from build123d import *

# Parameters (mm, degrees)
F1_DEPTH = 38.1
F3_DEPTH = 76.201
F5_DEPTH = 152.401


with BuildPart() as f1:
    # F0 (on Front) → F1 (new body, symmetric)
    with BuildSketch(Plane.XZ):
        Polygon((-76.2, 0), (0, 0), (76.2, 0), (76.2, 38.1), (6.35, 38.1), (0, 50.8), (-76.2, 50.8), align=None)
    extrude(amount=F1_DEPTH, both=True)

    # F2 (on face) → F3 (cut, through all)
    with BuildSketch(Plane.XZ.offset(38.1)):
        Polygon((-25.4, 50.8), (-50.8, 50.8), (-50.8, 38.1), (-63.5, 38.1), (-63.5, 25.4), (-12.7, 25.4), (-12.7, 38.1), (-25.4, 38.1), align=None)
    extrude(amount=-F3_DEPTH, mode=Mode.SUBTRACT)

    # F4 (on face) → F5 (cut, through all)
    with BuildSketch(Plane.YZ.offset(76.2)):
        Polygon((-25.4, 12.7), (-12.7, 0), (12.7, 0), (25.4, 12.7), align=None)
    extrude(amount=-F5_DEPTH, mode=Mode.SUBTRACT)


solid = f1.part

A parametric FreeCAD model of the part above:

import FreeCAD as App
import Part
import Sketcher
Q = App.Units.Quantity

doc = App.newDocument("Part")
body = doc.addObject("PartDesign::Body", "Body")

sketch1 = body.newObject("Sketcher::SketchObject", "Sketch")
sketch1.AttachmentSupport = (doc.getObject("XZ_Plane"), [""])
sketch1.MapMode = "FlatFace"
sketch1.addGeometry(Part.LineSegment(App.Vector(-76, 0, 0), App.Vector(76, 0, 0)), False)
sketch1.addGeometry(Part.LineSegment(App.Vector(76, 0, 0), App.Vector(76, 38, 0)), False)
sketch1.addGeometry(Part.LineSegment(App.Vector(76, 38, 0), App.Vector(6, 38, 0)), False)
sketch1.addGeometry(Part.LineSegment(App.Vector(6, 38, 0), App.Vector(0, 51, 0)), False)
sketch1.addGeometry(Part.LineSegment(App.Vector(0, 51, 0), App.Vector(-76, 51, 0)), False)
sketch1.addGeometry(Part.LineSegment(App.Vector(-76, 51, 0), App.Vector(-76, 0, 0)), False)
sketch1.addConstraint(Sketcher.Constraint("Coincident", 0, 2, 1, 1))
sketch1.addConstraint(Sketcher.Constraint("Coincident", 1, 2, 2, 1))
sketch1.addConstraint(Sketcher.Constraint("Coincident", 2, 2, 3, 1))
sketch1.addConstraint(Sketcher.Constraint("Coincident", 3, 2, 4, 1))
sketch1.addConstraint(Sketcher.Constraint("Coincident", 4, 2, 5, 1))
sketch1.addConstraint(Sketcher.Constraint("Coincident", 5, 2, 0, 1))
sketch1.addConstraint(Sketcher.Constraint("Horizontal", 0))
sketch1.addConstraint(Sketcher.Constraint("Vertical", 1))
sketch1.addConstraint(Sketcher.Constraint("Horizontal", 2))
sketch1.addConstraint(Sketcher.Constraint("Horizontal", 4))
sketch1.addConstraint(Sketcher.Constraint("Vertical", 5))
sketch1.addConstraint(Sketcher.Constraint("Symmetric", 0, 2, 5, 2, -1, 1))
sketch1.addConstraint(Sketcher.Constraint("PointOnObject", 3, 2, -2))
sketch1.addConstraint(Sketcher.Constraint("DistanceX", 0, 1, 0, 2, Q("6 in")))
sketch1.addConstraint(Sketcher.Constraint("DistanceY", 5, 2, 5, 1, Q("2 in")))
sketch1.addConstraint(Sketcher.Constraint("DistanceY", 1, 1, 1, 2, Q("1.5 in")))
sketch1.addConstraint(Sketcher.Constraint("DistanceX", 2, 2, 2, 1, Q("2.75 in")))
pad1 = body.newObject("PartDesign::Pad", "Pad")
pad1.Profile = sketch1
pad1.Length = Q("3 in")
pad1.Midplane = True

sketch2 = body.newObject("Sketcher::SketchObject", "Sketch001")
sketch2.AttachmentSupport = (doc.getObject("XZ_Plane"), [""])
sketch2.MapMode = "FlatFace"
sketch2.AttachmentOffset = App.Placement(App.Vector(0, 0, 1.5 * 25.4), App.Rotation())
sketch2.addGeometry(Part.LineSegment(App.Vector(-25, 51, 0), App.Vector(-51, 51, 0)), False)
sketch2.addGeometry(Part.LineSegment(App.Vector(-51, 51, 0), App.Vector(-51, 38, 0)), False)
sketch2.addGeometry(Part.LineSegment(App.Vector(-51, 38, 0), App.Vector(-64, 38, 0)), False)
sketch2.addGeometry(Part.LineSegment(App.Vector(-64, 38, 0), App.Vector(-64, 25, 0)), False)
sketch2.addGeometry(Part.LineSegment(App.Vector(-64, 25, 0), App.Vector(-13, 25, 0)), False)
sketch2.addGeometry(Part.LineSegment(App.Vector(-13, 25, 0), App.Vector(-13, 38, 0)), False)
sketch2.addGeometry(Part.LineSegment(App.Vector(-13, 38, 0), App.Vector(-25, 38, 0)), False)
sketch2.addGeometry(Part.LineSegment(App.Vector(-25, 38, 0), App.Vector(-25, 51, 0)), False)
sketch2.addConstraint(Sketcher.Constraint("Coincident", 0, 2, 1, 1))
sketch2.addConstraint(Sketcher.Constraint("Coincident", 1, 2, 2, 1))
sketch2.addConstraint(Sketcher.Constraint("Coincident", 2, 2, 3, 1))
sketch2.addConstraint(Sketcher.Constraint("Coincident", 3, 2, 4, 1))
sketch2.addConstraint(Sketcher.Constraint("Coincident", 4, 2, 5, 1))
sketch2.addConstraint(Sketcher.Constraint("Coincident", 5, 2, 6, 1))
sketch2.addConstraint(Sketcher.Constraint("Coincident", 6, 2, 7, 1))
sketch2.addConstraint(Sketcher.Constraint("Coincident", 7, 2, 0, 1))
sketch2.addConstraint(Sketcher.Constraint("Horizontal", 0))
sketch2.addConstraint(Sketcher.Constraint("Vertical", 1))
sketch2.addConstraint(Sketcher.Constraint("Horizontal", 2))
sketch2.addConstraint(Sketcher.Constraint("Vertical", 3))
sketch2.addConstraint(Sketcher.Constraint("Horizontal", 4))
sketch2.addConstraint(Sketcher.Constraint("Vertical", 5))
sketch2.addConstraint(Sketcher.Constraint("Horizontal", 6))
sketch2.addConstraint(Sketcher.Constraint("Vertical", 7))
sketch2.addConstraint(Sketcher.Constraint("Horizontal", 2, 2, 5, 2))
sketch2.addConstraint(Sketcher.Constraint("Equal", 2, 6))
sketch2.addConstraint(Sketcher.Constraint("Equal", 6, 1))
sketch2.addConstraint(Sketcher.Constraint("Equal", 1, 3))
sketch2.addConstraint(Sketcher.Constraint("DistanceX", 0, 2, 0, 1, Q("1 in")))
sketch2.addConstraint(Sketcher.Constraint("DistanceX", 4, 1, 4, 2, Q("2 in")))
sketch2.addConstraint(Sketcher.Constraint("DistanceX", 0, 2, -1, 1, Q("2 in")))
sketch2.addConstraint(Sketcher.Constraint("DistanceY", -1, 1, 0, 2, Q("2 in")))
pocket1 = body.newObject("PartDesign::Pocket", "Pocket")
pocket1.Profile = sketch2
pocket1.Type = "ThroughAll"

sketch3 = body.newObject("Sketcher::SketchObject", "Sketch002")
sketch3.AttachmentSupport = (doc.getObject("YZ_Plane"), [""])
sketch3.MapMode = "FlatFace"
sketch3.AttachmentOffset = App.Placement(App.Vector(0, 0, 3 * 25.4), App.Rotation())
sketch3.addGeometry(Part.LineSegment(App.Vector(-25, 13, 0), App.Vector(-13, 0, 0)), False)
sketch3.addGeometry(Part.LineSegment(App.Vector(-13, 0, 0), App.Vector(13, 0, 0)), False)
sketch3.addGeometry(Part.LineSegment(App.Vector(13, 0, 0), App.Vector(25, 13, 0)), False)
sketch3.addGeometry(Part.LineSegment(App.Vector(25, 13, 0), App.Vector(-25, 13, 0)), False)
sketch3.addConstraint(Sketcher.Constraint("Coincident", 0, 2, 1, 1))
sketch3.addConstraint(Sketcher.Constraint("Coincident", 1, 2, 2, 1))
sketch3.addConstraint(Sketcher.Constraint("Coincident", 2, 2, 3, 1))
sketch3.addConstraint(Sketcher.Constraint("Coincident", 3, 2, 0, 1))
sketch3.addConstraint(Sketcher.Constraint("Horizontal", 1))
sketch3.addConstraint(Sketcher.Constraint("Horizontal", 3))
sketch3.addConstraint(Sketcher.Constraint("Symmetric", 0, 2, 1, 2, -1, 1))
sketch3.addConstraint(Sketcher.Constraint("Perpendicular", 0, 2))
sketch3.addConstraint(Sketcher.Constraint("Equal", 0, 2))
sketch3.addConstraint(Sketcher.Constraint("DistanceX", 1, 1, 1, 2, Q("1 in")))
sketch3.addConstraint(Sketcher.Constraint("DistanceX", 3, 2, 3, 1, Q("2 in")))
pocket2 = body.newObject("PartDesign::Pocket", "Pocket001")
pocket2.Profile = sketch3
pocket2.Type = "ThroughAll"

doc.recompute()
